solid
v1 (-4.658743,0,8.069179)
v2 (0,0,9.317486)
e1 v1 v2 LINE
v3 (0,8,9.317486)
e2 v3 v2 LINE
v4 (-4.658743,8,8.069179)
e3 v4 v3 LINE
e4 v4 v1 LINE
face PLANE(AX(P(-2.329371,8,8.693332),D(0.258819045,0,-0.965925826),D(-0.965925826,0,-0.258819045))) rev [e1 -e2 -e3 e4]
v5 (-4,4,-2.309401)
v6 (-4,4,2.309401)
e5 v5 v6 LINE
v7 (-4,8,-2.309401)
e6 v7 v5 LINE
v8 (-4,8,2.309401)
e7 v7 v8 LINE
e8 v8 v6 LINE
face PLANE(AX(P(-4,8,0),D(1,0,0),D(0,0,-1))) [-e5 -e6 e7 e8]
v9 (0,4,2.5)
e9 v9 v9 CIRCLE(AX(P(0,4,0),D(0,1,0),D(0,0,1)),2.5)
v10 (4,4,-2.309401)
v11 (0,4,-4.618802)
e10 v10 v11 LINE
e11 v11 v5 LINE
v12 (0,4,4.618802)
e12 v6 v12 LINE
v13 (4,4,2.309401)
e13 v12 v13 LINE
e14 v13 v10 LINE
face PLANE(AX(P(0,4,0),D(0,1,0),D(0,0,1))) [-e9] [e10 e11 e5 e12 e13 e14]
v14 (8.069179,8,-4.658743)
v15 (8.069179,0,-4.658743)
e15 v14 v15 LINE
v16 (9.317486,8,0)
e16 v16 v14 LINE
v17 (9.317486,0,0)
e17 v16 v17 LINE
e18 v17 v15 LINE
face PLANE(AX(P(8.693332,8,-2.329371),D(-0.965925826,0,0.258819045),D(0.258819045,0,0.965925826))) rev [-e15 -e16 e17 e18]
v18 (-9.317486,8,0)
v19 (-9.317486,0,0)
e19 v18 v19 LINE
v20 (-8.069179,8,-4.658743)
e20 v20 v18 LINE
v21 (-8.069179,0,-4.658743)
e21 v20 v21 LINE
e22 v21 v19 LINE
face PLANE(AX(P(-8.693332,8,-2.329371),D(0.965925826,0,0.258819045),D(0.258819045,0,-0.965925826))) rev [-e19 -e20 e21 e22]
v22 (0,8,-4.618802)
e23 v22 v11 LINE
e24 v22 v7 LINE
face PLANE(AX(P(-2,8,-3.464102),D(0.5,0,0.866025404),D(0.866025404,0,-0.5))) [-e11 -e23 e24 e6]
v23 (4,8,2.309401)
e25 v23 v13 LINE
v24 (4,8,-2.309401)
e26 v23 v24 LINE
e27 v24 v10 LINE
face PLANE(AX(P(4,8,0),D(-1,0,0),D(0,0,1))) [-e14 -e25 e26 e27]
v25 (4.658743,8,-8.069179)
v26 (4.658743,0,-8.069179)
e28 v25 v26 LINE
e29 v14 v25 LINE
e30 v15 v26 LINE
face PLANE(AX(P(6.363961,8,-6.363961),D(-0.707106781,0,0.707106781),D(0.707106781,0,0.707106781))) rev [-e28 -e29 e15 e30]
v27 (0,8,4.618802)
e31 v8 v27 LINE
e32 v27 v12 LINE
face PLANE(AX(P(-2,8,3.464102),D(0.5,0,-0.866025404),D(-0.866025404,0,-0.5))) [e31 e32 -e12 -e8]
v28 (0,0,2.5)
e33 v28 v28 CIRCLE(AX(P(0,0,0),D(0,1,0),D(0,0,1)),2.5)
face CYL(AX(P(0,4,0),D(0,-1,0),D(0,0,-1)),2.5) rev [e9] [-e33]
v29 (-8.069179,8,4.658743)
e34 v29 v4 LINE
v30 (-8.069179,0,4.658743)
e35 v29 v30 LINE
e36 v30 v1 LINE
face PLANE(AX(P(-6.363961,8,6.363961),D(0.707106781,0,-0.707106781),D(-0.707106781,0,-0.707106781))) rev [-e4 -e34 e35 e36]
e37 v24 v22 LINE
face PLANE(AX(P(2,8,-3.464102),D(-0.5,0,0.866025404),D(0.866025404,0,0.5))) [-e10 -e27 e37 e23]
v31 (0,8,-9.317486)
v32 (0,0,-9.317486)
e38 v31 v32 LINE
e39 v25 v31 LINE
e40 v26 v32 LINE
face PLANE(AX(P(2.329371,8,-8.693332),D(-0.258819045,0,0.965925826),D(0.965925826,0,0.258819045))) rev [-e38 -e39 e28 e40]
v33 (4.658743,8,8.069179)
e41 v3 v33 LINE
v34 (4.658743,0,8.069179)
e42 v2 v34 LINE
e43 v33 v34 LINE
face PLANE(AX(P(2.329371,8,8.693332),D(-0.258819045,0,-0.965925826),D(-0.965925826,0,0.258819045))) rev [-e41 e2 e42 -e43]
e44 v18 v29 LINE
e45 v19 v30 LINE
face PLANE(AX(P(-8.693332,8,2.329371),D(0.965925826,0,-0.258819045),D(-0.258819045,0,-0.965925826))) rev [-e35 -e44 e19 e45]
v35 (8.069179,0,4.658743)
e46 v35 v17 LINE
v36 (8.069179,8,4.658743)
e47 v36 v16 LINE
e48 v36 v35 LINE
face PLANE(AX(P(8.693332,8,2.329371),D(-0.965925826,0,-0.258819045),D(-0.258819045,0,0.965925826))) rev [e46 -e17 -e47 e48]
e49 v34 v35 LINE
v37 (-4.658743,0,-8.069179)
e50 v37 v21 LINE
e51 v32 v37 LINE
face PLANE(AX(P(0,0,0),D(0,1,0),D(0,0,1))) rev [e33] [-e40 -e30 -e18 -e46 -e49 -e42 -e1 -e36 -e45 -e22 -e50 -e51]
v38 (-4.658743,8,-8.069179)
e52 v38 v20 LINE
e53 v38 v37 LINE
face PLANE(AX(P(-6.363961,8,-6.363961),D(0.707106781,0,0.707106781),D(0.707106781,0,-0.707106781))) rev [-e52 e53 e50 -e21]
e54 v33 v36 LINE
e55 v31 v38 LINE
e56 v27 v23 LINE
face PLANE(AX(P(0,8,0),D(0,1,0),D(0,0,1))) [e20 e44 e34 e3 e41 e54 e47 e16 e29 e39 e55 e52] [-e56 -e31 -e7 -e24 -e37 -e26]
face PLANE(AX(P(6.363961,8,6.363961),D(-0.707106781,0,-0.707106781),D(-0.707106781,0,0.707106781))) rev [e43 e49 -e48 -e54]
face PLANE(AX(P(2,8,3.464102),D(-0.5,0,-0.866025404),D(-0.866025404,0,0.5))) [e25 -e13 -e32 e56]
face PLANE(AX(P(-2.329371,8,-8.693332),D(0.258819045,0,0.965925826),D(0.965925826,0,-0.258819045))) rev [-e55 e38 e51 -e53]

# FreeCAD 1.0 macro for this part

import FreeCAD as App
import Part
import Sketcher
Q = App.Units.Quantity

doc = App.newDocument("Part")
body = doc.addObject("PartDesign::Body", "Body")

sketch1 = doc.addObject("Sketcher::SketchObject", "Sketch")
body.addObject(sketch1)
sketch1.AttachmentSupport = (doc.XZ_Plane, [""])
sketch1.MapMode = "FlatFace"
sketch1.addGeometry([
    Part.LineSegment(App.Vector(8.1, 4.7, 0), App.Vector(9.3, 0, 0)),
    Part.LineSegment(App.Vector(9.3, 0, 0), App.Vector(8.1, -4.7, 0)),
    Part.LineSegment(App.Vector(8.1, -4.7, 0), App.Vector(4.7, -8.1, 0)),
    Part.LineSegment(App.Vector(4.7, -8.1, 0), App.Vector(0, -9.3, 0)),
    Part.LineSegment(App.Vector(0, -9.3, 0), App.Vector(-4.7, -8.1, 0)),
    Part.LineSegment(App.Vector(-4.7, -8.1, 0), App.Vector(-8.1, -4.7, 0)),
    Part.LineSegment(App.Vector(-8.1, -4.7, 0), App.Vector(-9.3, 0, 0)),
    Part.LineSegment(App.Vector(-9.3, 0, 0), App.Vector(-8.1, 4.7, 0)),
    Part.LineSegment(App.Vector(-8.1, 4.7, 0), App.Vector(-4.7, 8.1, 0)),
    Part.LineSegment(App.Vector(-4.7, 8.1, 0), App.Vector(0, 9.3, 0)),
    Part.LineSegment(App.Vector(0, 9.3, 0), App.Vector(4.7, 8.1, 0)),
    Part.LineSegment(App.Vector(4.7, 8.1, 0), App.Vector(8.1, 4.7, 0)),
    Part.LineSegment(App.Vector(4, -2.3, 0), App.Vector(4, 2.3, 0)),
    Part.LineSegment(App.Vector(4, 2.3, 0), App.Vector(0, 4.6, 0)),
    Part.LineSegment(App.Vector(0, 4.6, 0), App.Vector(-4, 2.3, 0)),
    Part.LineSegment(App.Vector(-4, 2.3, 0), App.Vector(-4, -2.3, 0)),
    Part.LineSegment(App.Vector(-4, -2.3, 0), App.Vector(0, -4.6, 0)),
    Part.LineSegment(App.Vector(0, -4.6, 0), App.Vector(4, -2.3, 0)),
], False)
sketch1.addConstraint([
    Sketcher.Constraint("Coincident", 0, 2, 1, 1),
    Sketcher.Constraint("Coincident", 1, 2, 2, 1),
    Sketcher.Constraint("Coincident", 2, 2, 3, 1),
    Sketcher.Constraint("Coincident", 3, 2, 4, 1),
    Sketcher.Constraint("Coincident", 4, 2, 5, 1),
    Sketcher.Constraint("Coincident", 5, 2, 6, 1),
    Sketcher.Constraint("Coincident", 6, 2, 7, 1),
    Sketcher.Constraint("Coincident", 7, 2, 8, 1),
    Sketcher.Constraint("Coincident", 8, 2, 9, 1),
    Sketcher.Constraint("Coincident", 9, 2, 10, 1),
    Sketcher.Constraint("Coincident", 10, 2, 11, 1),
    Sketcher.Constraint("Coincident", 11, 2, 0, 1),
    Sketcher.Constraint("Coincident", 12, 2, 13, 1),
    Sketcher.Constraint("Coincident", 13, 2, 14, 1),
    Sketcher.Constraint("Coincident", 14, 2, 15, 1),
    Sketcher.Constraint("Coincident", 15, 2, 16, 1),
    Sketcher.Constraint("Coincident", 16, 2, 17, 1),
    Sketcher.Constraint("Coincident", 17, 2, 12, 1),
    Sketcher.Constraint("Vertical", 12),
    Sketcher.Constraint("Vertical", 15),
    Sketcher.Constraint("Symmetric", 0, 2, 6, 2, -1, 1),
    Sketcher.Constraint("Symmetric", 1, 2, 7, 2, -1, 1),
    Sketcher.Constraint("Symmetric", 2, 2, 8, 2, -1, 1),
    Sketcher.Constraint("Symmetric", 3, 2, 9, 2, -1, 1),
    Sketcher.Constraint("Symmetric", 4, 2, 10, 2, -1, 1),
    Sketcher.Constraint("Symmetric", 5, 2, 11, 2, -1, 1),
    Sketcher.Constraint("Symmetric", 12, 2, 15, 2, -1, 1),
    Sketcher.Constraint("Symmetric", 13, 2, 16, 2, -1, 1),
    Sketcher.Constraint("Symmetric", 2, 2, 4, 2, -2),
    Sketcher.Constraint("Symmetric", 1, 2, 5, 2, -2),
    Sketcher.Constraint("PointOnObject", 0, 2, -1),
    Sketcher.Constraint("PointOnObject", 3, 2, -2),
    Sketcher.Constraint("PointOnObject", 13, 2, -2),
    Sketcher.Constraint("Perpendicular", 0, 3),
    Sketcher.Constraint("Perpendicular", 2, 5),
    Sketcher.Constraint("Parallel", 14, 17),
    Sketcher.Constraint("Horizontal", 12, 2, 14, 2),
    Sketcher.Constraint("Equal", 1, 2),
    Sketcher.Constraint("Equal", 2, 3),
    Sketcher.Constraint("Angle", 0, Q("-75 deg")),
    Sketcher.Constraint("Angle", 13, Q("150 deg")),
    Sketcher.Constraint("DistanceX", -1, 1, 12, 2, Q("4 mm")),
    Sketcher.Constraint("DistanceY", -1, 1, 12, 2, Q("2.309401 mm")),
    Sketcher.Constraint("DistanceX", -1, 1, 1, 2, Q("8.069179 mm")),
])
pad1 = doc.addObject("PartDesign::Pad", "Pad")
body.addObject(pad1)
pad1.Profile = sketch1
pad1.Length = 8
pad1.Reversed = True

sketch2 = doc.addObject("Sketcher::SketchObject", "Sketch001")
body.addObject(sketch2)
sketch2.AttachmentSupport = (doc.XZ_Plane, [""])
sketch2.MapMode = "FlatFace"
sketch2.addGeometry([
    Part.LineSegment(App.Vector(4, 2.3, 0), App.Vector(4, -2.3, 0)),
    Part.LineSegment(App.Vector(4, -2.3, 0), App.Vector(0, -4.6, 0)),
    Part.LineSegment(App.Vector(0, -4.6, 0), App.Vector(-4, -2.3, 0)),
    Part.LineSegment(App.Vector(-4, -2.3, 0), App.Vector(-4, 2.3, 0)),
    Part.LineSegment(App.Vector(-4, 2.3, 0), App.Vector(0, 4.6, 0)),
    Part.LineSegment(App.Vector(0, 4.6, 0), App.Vector(4, 2.3, 0)),
    Part.Circle(App.Vector(0, 0, 0), App.Vector(0, 0, 1), 2.5),
], False)
sketch2.addConstraint([
    Sketcher.Constraint("Coincident", 0, 2, 1, 1),
    Sketcher.Constraint("Coincident", 1, 2, 2, 1),
    Sketcher.Constraint("Coincident", 2, 2, 3, 1),
    Sketcher.Constraint("Coincident", 3, 2, 4, 1),
    Sketcher.Constraint("Coincident", 4, 2, 5, 1),
    Sketcher.Constraint("Coincident", 5, 2, 0, 1),
    Sketcher.Constraint("Vertical", 0),
    Sketcher.Constraint("Vertical", 3),
    Sketcher.Constraint("Coincident", 6, 3, -1, 1),
    Sketcher.Constraint("Symmetric", 0, 2, 3, 2, -1, 1),
    Sketcher.Constraint("Symmetric", 1, 2, 4, 2, -1, 1),
    Sketcher.Constraint("PointOnObject", 1, 2, -2),
    Sketcher.Constraint("Parallel", 2, 5),
    Sketcher.Constraint("Horizontal", 0, 2, 2, 2),
    Sketcher.Constraint("Diameter", 6, Q("5 mm")),
    Sketcher.Constraint("Angle", 1, Q("-150 deg")),
    Sketcher.Constraint("DistanceX", -1, 1, 0, 2, Q("4 mm")),
    Sketcher.Constraint("DistanceY", 0, 2, -1, 1, Q("2.309401 mm")),
])
pad2 = doc.addObject("PartDesign::Pad", "Pad001")
body.addObject(pad2)
pad2.Profile = sketch2
pad2.Length = 4
pad2.Reversed = True

doc.recompute()
